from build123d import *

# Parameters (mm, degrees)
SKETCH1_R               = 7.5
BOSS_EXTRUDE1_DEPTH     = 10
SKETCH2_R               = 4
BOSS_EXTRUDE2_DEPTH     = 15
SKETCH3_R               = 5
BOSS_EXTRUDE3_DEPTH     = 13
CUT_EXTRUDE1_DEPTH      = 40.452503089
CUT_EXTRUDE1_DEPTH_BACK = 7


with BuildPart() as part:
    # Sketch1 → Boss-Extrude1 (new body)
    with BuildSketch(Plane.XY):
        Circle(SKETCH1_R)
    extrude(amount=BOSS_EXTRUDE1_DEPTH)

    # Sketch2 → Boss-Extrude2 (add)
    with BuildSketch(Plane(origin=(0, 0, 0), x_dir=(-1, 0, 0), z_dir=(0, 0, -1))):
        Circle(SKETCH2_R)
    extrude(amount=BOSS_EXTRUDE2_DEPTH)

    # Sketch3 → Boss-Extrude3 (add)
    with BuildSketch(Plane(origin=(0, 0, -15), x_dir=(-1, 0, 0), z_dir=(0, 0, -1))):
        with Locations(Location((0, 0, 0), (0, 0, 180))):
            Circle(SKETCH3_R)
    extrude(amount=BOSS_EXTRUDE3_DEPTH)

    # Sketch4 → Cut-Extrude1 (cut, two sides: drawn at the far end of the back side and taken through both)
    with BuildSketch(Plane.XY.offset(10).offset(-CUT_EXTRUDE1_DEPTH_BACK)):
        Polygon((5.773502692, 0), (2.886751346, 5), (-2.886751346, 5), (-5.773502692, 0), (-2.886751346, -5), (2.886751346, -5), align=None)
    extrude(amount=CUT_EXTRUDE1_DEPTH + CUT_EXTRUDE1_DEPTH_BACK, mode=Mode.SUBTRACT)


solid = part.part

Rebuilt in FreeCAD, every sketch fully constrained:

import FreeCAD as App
import Part
import Sketcher
Q = App.Units.Quantity


def add_polygon(sketch, points):
    """Adds a closed chain of lines whose ends are joined by coincident constraints."""
    first, n = sketch.GeometryCount, len(points)
    for a, b in zip(points, points[1:] + points[:1]):
        sketch.addGeometry(Part.LineSegment(App.Vector(*a, 0), App.Vector(*b, 0)), False)
    for i in range(n):
        sketch.addConstraint(Sketcher.Constraint("Coincident", first + i, 2, first + (i + 1) % n, 1))

doc = App.newDocument("Part")
body = doc.addObject("PartDesign::Body", "Body")

# Sketch on XY plane
sketch1 = doc.addObject("Sketcher::SketchObject", "Sketch")
body.addObject(sketch1)
sketch1.AttachmentSupport = (doc.XY_Plane, [""])
sketch1.MapMode = "FlatFace"
sketch1.addGeometry(Part.Circle(App.Vector(0, 0, 0), App.Vector(0, 0, 1), 7.5), False)
sketch1.addConstraint(Sketcher.Constraint("Coincident", 0, 3, -1, 1))
sketch1.addConstraint(Sketcher.Constraint("Diameter", 0, Q("15 mm")))
pad1 = doc.addObject("PartDesign::Pad", "Pad")
body.addObject(pad1)
pad1.Profile = sketch1
pad1.Length = 10

# Sketch on XY plane
sketch2 = doc.addObject("Sketcher::SketchObject", "Sketch001")
body.addObject(sketch2)
sketch2.AttachmentSupport = (doc.XY_Plane, [""])
sketch2.MapMode = "FlatFace"
sketch2.addGeometry(Part.Circle(App.Vector(0, 0, 0), App.Vector(0, 0, 1), 4), False)
sketch2.addConstraint(Sketcher.Constraint("Coincident", 0, 3, -1, 1))
sketch2.addConstraint(Sketcher.Constraint("Diameter", 0, Q("8 mm")))
pad2 = doc.addObject("PartDesign::Pad", "Pad001")
body.addObject(pad2)
pad2.Profile = sketch2
pad2.Length = 15
pad2.Reversed = True

# Sketch on XY plane
sketch3 = doc.addObject("Sketcher::SketchObject", "Sketch002")
body.addObject(sketch3)
sketch3.AttachmentSupport = (doc.XY_Plane, [""])
sketch3.MapMode = "FlatFace"
sketch3.AttachmentOffset = App.Placement(App.Vector(0, 0, -15), App.Rotation())
sketch3.addGeometry(Part.Circle(App.Vector(0, 0, 0), App.Vector(0, 0, 1), 5), False)
sketch3.addConstraint(Sketcher.Constraint("Coincident", 0, 3, -1, 1))
sketch3.addConstraint(Sketcher.Constraint("Diameter", 0, Q("10 mm")))
pad3 = doc.addObject("PartDesign::Pad", "Pad002")
body.addObject(pad3)
pad3.Profile = sketch3
pad3.Length = 13
pad3.Reversed = True

# Sketch on XY plane
sketch4 = doc.addObject("Sketcher::SketchObject", "Sketch003")
body.addObject(sketch4)
sketch4.AttachmentSupport = (doc.XY_Plane, [""])
sketch4.MapMode = "FlatFace"
sketch4.AttachmentOffset = App.Placement(App.Vector(0, 0, 10), App.Rotation())
add_polygon(sketch4, [(5.773503, 0), (2.886751, 5), (-2.886751, 5), (-5.773503, 0), (-2.886751, -5), (2.886751, -5)])  # lines 0-5
sketch4.addConstraint(Sketcher.Constraint("Horizontal", 1))
sketch4.addConstraint(Sketcher.Constraint("Horizontal", 4))
sketch4.addConstraint(Sketcher.Constraint("Symmetric", 0, 2, 3, 2, -1, 1))
sketch4.addConstraint(Sketcher.Constraint("Symmetric", 2, 2, 5, 2, -1, 1))
sketch4.addConstraint(Sketcher.Constraint("PointOnObject", 2, 2, -1))
sketch4.addConstraint(Sketcher.Constraint("Parallel", 2, 5))
sketch4.addConstraint(Sketcher.Constraint("Vertical", 1, 2, 3, 2))
sketch4.addConstraint(Sketcher.Constraint("Angle", 0, Q("120 deg")))
sketch4.addConstraint(Sketcher.Constraint("DistanceY", -1, 1, 0, 2, Q("5 mm")))
sketch4.addConstraint(Sketcher.Constraint("DistanceX", 1, 2, 1, 1, Q("5.773503 mm")))
pocket1 = doc.addObject("PartDesign::Pocket", "Pocket")
body.addObject(pocket1)
pocket1.Profile = sketch4
pocket1.Type = "TwoLengths"
pocket1.Length = 40.452503
pocket1.Length2 = 7
pocket1.Reversed = True

doc.recompute()
